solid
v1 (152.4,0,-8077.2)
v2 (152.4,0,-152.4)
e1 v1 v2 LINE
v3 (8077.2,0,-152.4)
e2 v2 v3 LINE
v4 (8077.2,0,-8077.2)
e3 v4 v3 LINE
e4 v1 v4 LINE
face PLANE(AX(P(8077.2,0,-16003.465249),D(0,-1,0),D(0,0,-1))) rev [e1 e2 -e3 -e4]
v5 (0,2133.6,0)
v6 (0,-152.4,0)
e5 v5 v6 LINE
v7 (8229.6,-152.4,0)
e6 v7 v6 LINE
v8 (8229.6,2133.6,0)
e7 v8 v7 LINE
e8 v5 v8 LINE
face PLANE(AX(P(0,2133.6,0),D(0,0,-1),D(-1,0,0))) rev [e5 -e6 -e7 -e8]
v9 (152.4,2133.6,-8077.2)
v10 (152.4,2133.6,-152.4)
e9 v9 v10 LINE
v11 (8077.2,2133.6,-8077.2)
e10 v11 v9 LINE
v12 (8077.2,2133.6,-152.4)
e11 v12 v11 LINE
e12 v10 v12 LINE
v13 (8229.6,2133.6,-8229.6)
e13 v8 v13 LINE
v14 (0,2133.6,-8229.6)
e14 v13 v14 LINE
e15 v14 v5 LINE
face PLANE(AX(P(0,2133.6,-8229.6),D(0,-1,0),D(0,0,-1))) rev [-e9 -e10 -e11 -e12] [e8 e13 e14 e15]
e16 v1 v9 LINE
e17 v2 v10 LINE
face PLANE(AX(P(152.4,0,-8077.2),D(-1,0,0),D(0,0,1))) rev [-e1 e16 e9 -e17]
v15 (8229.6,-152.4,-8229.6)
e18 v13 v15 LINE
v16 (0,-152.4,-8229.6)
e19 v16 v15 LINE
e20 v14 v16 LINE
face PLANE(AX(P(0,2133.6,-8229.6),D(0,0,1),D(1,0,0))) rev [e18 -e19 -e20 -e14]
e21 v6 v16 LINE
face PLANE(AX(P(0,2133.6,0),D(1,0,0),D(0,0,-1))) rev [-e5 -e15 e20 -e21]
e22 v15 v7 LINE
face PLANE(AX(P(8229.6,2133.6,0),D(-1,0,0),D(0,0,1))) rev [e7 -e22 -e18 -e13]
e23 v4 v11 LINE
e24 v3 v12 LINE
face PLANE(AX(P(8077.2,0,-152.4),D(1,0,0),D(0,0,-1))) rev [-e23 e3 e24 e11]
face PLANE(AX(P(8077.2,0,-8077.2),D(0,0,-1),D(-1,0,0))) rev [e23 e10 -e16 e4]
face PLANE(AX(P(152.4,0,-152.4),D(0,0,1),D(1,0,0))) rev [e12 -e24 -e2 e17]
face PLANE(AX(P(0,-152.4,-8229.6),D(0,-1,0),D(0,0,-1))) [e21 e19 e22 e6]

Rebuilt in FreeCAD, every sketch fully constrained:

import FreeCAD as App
import Part
import Sketcher
from FreeCAD import Vector
Q = App.Units.Quantity


def add_polygon(sketch, points):
    """Adds a closed chain of lines whose ends are joined by coincident constraints."""
    first, n = sketch.GeometryCount, len(points)
    for a, b in zip(points, points[1:] + points[:1]):
        sketch.addGeometry(Part.LineSegment(App.Vector(*a, 0), App.Vector(*b, 0)), False)
    for i in range(n):
        sketch.addConstraint(Sketcher.Constraint("Coincident", first + i, 2, first + (i + 1) % n, 1))

doc = App.newDocument("Part")
body = doc.addObject("PartDesign::Body", "Body")

# Sketch on XZ plane
sketch1 = body.newObject("Sketcher::SketchObject", "Sketch")
sketch1.AttachmentSupport = (doc.getObject("XZ_Plane"), [""])
sketch1.MapMode = "FlatFace"
add_polygon(sketch1, [(0, -8230), (0, 0), (8230, 0), (8230, -8230)])  # lines 0-3
sketch1.addConstraint([
    Sketcher.Constraint("Vertical", 0),
    Sketcher.Constraint("Horizontal", 1),
    Sketcher.Constraint("Vertical", 2),
    Sketcher.Constraint("Horizontal", 3),
    Sketcher.Constraint("Coincident", 0, 2, -1, 1),
    Sketcher.Constraint("Equal", 3, 0),
    Sketcher.Constraint("DistanceX", 1, 1, 1, 2, Q("324 in")),
])
pad1 = body.newObject("PartDesign::Pad", "Pad")
pad1.Profile = sketch1
pad1.Length = Q("84 in")
pad1.Reversed = True

# Sketch on XZ plane
sketch2 = body.newObject("Sketcher::SketchObject", "Sketch001")
sketch2.AttachmentSupport = (doc.getObject("XZ_Plane"), [""])
sketch2.MapMode = "FlatFace"
sketch2.AttachmentOffset = App.Placement(Vector(0, 0, -84 * 25.4), App.Rotation())
add_polygon(sketch2, [(152, -8077), (152, -152), (8077, -152), (8077, -8077)])  # lines 0-3
sketch2.addConstraint([
    Sketcher.Constraint("Vertical", 0),
    Sketcher.Constraint("Horizontal", 1),
    Sketcher.Constraint("Vertical", 2),
    Sketcher.Constraint("Horizontal", 3),
    Sketcher.Constraint("Equal", 3, 0),
    Sketcher.Constraint("DistanceX", 1, 1, 1, 2, Q("312 in")),
    Sketcher.Constraint("DistanceX", -1, 1, 0, 2, Q("6 in")),
    Sketcher.Constraint("DistanceY", 0, 2, -1, 1, Q("6 in")),
])
pocket1 = body.newObject("PartDesign::Pocket", "Pocket")
pocket1.Profile = sketch2
pocket1.Type = "ThroughAll"
pocket1.Reversed = True

# Sketch on XZ plane
sketch3 = body.newObject("Sketcher::SketchObject", "Sketch002")
sketch3.AttachmentSupport = (doc.getObject("XZ_Plane"), [""])
sketch3.MapMode = "FlatFace"
add_polygon(sketch3, [(0, 0), (0, -8230), (8230, -8230), (8230, 0)])  # lines 0-3
add_polygon(sketch3, [(8077, -8077), (152, -8077), (152, -152), (8077, -152)])  # lines 4-7
sketch3.addConstraint([
    Sketcher.Constraint("Vertical", 0),
    Sketcher.Constraint("Horizontal", 1),
    Sketcher.Constraint("Vertical", 2),
    Sketcher.Constraint("Horizontal", 3),
    Sketcher.Constraint("Horizontal", 4),
    Sketcher.Constraint("Vertical", 5),
    Sketcher.Constraint("Horizontal", 6),
    Sketcher.Constraint("Vertical", 7),
    Sketcher.Constraint("Coincident", 3, 2, -1, 1),
    Sketcher.Constraint("Equal", 3, 0),
    Sketcher.Constraint("Equal", 6, 5),
    Sketcher.Constraint("DistanceX", 1, 1, 1, 2, Q("324 in")),
    Sketcher.Constraint("DistanceX", 4, 2, 4, 1, Q("312 in")),
    Sketcher.Constraint("DistanceX", -1, 1, 4, 2, Q("6 in")),
    Sketcher.Constraint("DistanceY", 4, 2, -1, 1, Q("318 in")),
])
pad2 = body.newObject("PartDesign::Pad", "Pad001")
pad2.Profile = sketch3
pad2.Length = Q("6 in")

# Sketch on XY plane
sketch4 = body.newObject("Sketcher::SketchObject", "Sketch003")
sketch4.AttachmentSupport = (doc.getObject("XY_Plane"), [""])
sketch4.MapMode = "FlatFace"
sketch4.AttachmentOffset = App.Placement(Vector(0, 0, -6 * 25.4), App.Rotation())
add_polygon(sketch4, [(8077, 0), (8077, -152), (152, -152), (152, 0)])  # lines 0-3
sketch4.addConstraint([
    Sketcher.Constraint("Vertical", 0),
    Sketcher.Constraint("Horizontal", 1),
    Sketcher.Constraint("Vertical", 2),
    Sketcher.Constraint("Horizontal", 3),
    Sketcher.Constraint("PointOnObject", 2, 2, -1),
    Sketcher.Constraint("DistanceX", 1, 2, 1, 1, Q("312 in")),
    Sketcher.Constraint("DistanceY", 0, 2, 0, 1, Q("6 in")),
    Sketcher.Constraint("DistanceX", -1, 1, 0, 2, Q("318 in")),
])
pad3 = body.newObject("PartDesign::Pad", "Pad002")
pad3.Profile = sketch4
pad3.Length = Q("312 in")
pad3.Reversed = True

doc.recompute()
